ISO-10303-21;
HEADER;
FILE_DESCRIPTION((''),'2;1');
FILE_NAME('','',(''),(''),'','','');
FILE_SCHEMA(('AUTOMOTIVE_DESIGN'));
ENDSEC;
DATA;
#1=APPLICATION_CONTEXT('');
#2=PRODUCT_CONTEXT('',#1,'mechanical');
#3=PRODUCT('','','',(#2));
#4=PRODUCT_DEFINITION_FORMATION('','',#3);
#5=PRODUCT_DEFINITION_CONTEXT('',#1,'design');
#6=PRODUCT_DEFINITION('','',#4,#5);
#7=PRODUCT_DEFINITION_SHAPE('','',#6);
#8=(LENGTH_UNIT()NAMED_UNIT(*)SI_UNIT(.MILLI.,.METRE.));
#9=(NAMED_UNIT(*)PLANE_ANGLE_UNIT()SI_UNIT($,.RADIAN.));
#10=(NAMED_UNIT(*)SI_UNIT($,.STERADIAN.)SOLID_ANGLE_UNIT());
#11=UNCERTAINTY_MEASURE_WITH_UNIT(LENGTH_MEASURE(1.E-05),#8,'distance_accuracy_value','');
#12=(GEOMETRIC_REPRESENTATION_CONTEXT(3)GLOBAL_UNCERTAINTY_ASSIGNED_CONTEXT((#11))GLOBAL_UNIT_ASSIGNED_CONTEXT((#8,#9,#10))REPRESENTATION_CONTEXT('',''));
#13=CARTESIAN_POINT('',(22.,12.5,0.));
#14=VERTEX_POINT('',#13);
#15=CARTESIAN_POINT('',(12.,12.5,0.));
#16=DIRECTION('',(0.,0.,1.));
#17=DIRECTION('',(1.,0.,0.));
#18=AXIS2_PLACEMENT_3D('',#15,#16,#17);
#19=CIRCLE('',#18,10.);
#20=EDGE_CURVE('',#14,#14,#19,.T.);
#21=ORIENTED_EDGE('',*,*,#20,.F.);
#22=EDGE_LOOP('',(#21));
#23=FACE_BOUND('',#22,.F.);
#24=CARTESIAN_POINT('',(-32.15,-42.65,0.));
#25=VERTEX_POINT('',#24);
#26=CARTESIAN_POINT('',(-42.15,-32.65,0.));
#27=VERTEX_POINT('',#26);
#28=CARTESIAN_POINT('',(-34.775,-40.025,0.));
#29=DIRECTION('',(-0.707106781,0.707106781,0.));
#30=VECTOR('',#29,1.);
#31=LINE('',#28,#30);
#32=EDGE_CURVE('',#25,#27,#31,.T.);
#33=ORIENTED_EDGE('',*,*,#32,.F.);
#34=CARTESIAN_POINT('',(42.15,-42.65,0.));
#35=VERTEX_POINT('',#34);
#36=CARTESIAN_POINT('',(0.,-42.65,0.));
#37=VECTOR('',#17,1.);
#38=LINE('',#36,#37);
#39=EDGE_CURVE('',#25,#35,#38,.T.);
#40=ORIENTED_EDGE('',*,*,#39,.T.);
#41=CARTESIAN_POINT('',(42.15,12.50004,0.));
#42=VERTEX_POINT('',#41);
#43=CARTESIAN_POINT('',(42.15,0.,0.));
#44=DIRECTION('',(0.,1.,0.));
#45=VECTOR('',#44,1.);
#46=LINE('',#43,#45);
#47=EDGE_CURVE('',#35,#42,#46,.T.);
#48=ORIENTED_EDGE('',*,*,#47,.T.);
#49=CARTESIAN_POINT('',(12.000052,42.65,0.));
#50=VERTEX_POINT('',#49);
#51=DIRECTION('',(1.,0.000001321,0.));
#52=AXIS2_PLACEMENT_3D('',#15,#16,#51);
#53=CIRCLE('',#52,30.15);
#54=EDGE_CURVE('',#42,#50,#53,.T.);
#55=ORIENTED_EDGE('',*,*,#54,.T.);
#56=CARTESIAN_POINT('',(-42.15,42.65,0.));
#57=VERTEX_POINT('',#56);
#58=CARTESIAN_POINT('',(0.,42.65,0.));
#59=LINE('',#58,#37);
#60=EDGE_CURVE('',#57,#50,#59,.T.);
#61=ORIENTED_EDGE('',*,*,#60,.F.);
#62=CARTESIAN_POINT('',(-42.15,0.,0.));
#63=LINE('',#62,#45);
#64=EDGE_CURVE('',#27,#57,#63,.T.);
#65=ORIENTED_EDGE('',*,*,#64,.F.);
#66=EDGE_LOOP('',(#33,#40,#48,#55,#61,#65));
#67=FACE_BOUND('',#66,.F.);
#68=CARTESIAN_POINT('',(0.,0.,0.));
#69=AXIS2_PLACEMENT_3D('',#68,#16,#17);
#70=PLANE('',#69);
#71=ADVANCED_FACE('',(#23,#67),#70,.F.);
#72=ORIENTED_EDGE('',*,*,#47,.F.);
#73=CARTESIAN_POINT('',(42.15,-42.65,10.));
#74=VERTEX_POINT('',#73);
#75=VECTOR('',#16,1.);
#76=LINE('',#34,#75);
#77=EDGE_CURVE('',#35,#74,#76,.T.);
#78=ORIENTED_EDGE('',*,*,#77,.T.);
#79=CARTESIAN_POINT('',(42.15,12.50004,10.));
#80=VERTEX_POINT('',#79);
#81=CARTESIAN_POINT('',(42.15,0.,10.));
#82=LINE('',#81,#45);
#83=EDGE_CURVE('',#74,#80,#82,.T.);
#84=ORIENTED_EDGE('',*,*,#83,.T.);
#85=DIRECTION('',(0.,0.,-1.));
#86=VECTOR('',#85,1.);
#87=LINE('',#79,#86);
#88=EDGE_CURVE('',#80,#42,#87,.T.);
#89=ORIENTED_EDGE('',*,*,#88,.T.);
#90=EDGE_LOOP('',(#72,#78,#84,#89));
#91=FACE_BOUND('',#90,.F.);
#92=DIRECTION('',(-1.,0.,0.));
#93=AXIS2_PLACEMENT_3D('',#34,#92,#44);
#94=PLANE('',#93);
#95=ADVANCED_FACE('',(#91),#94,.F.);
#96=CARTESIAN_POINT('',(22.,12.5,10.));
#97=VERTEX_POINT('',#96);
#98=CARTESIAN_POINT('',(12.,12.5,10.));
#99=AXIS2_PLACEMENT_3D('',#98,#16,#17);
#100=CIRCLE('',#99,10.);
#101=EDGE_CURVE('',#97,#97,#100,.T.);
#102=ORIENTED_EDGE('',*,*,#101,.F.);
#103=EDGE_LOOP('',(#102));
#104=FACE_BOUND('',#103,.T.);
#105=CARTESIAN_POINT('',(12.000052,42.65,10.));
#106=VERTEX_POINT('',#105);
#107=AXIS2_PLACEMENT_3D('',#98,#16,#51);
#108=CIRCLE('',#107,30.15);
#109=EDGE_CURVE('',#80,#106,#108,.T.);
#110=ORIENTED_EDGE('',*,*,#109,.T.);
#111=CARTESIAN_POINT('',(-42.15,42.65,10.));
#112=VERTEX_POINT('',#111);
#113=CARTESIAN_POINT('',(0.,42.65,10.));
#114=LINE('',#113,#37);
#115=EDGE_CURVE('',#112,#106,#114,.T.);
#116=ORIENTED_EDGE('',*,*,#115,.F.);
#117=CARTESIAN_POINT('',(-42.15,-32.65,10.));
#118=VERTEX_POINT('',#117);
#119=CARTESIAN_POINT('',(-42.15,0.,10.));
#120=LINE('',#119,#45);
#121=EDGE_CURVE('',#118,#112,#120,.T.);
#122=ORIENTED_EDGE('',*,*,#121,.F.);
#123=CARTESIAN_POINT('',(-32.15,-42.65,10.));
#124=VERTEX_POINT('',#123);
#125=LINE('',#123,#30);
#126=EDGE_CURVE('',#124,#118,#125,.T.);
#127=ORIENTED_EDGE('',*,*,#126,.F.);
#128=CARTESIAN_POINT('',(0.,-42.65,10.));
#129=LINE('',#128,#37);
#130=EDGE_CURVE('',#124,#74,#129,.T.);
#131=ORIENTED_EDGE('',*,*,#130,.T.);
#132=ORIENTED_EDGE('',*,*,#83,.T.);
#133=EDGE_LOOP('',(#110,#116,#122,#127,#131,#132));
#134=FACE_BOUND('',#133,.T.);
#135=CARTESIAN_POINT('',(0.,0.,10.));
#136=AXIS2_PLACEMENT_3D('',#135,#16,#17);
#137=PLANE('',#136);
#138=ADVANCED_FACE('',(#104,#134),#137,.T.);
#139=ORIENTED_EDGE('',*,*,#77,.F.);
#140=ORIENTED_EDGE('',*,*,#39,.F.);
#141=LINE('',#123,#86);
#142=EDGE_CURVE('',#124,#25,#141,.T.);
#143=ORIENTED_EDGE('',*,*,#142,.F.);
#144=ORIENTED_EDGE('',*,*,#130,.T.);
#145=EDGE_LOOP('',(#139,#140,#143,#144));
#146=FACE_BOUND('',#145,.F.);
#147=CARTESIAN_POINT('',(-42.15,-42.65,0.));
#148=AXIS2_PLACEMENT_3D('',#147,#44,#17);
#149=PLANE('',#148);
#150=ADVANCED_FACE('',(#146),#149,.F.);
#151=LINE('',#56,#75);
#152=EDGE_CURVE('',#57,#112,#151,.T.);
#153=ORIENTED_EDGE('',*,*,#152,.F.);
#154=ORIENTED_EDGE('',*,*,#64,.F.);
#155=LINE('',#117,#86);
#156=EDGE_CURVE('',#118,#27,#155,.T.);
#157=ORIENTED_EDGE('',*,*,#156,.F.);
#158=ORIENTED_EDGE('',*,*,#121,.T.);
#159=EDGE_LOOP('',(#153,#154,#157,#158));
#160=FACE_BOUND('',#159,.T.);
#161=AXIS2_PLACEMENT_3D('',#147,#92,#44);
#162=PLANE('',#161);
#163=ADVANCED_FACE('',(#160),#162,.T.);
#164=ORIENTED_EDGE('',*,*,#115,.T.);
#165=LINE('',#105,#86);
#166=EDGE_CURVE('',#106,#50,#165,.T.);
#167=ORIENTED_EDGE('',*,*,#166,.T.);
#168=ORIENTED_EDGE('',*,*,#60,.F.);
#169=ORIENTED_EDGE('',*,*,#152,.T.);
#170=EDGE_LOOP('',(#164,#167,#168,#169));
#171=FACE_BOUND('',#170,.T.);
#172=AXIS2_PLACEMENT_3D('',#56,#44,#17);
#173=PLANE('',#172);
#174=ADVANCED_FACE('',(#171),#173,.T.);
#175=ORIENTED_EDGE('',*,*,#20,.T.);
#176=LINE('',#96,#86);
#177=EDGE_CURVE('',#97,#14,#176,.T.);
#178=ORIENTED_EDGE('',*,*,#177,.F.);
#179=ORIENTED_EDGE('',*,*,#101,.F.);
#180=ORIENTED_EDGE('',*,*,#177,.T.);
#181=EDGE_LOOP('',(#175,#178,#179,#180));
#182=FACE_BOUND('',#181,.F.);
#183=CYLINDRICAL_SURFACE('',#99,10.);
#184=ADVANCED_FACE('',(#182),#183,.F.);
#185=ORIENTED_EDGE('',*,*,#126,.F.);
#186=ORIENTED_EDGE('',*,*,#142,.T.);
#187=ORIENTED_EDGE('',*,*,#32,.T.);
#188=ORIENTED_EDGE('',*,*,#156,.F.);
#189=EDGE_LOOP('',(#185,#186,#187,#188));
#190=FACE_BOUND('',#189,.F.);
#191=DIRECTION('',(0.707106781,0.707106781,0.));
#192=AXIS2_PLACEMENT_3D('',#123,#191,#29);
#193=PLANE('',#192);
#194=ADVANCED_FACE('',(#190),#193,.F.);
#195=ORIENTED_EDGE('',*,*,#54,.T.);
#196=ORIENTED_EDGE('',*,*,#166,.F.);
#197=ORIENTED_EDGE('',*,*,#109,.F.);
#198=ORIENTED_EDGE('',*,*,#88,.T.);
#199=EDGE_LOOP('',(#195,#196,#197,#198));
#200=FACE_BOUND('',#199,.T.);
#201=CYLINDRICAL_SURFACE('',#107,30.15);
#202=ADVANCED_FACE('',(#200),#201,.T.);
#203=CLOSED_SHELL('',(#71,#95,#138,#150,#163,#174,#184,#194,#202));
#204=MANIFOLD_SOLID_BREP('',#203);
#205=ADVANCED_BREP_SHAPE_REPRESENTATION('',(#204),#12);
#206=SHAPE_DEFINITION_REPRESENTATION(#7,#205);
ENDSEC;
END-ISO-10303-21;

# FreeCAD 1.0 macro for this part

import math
import FreeCAD as App
import Part
import Sketcher
from FreeCAD import Vector


def add_polygon(sketch, points):
    """Adds a closed chain of lines whose ends are joined by coincident constraints."""
    first, n = sketch.GeometryCount, len(points)
    for a, b in zip(points, points[1:] + points[:1]):
        sketch.addGeometry(Part.LineSegment(App.Vector(*a, 0), App.Vector(*b, 0)), False)
    for i in range(n):
        sketch.addConstraint(Sketcher.Constraint("Coincident", first + i, 2, first + (i + 1) % n, 1))

doc = App.newDocument("Part")
body = doc.addObject("PartDesign::Body", "Body")

# Sketch on XY plane
sketch1 = body.newObject("Sketcher::SketchObject", "Sketch")
sketch1.AttachmentSupport = (doc.getObject("XY_Plane"), [""])
sketch1.MapMode = "FlatFace"
add_polygon(sketch1, [(-42, 43), (-42, -43), (42, -43), (42, 43)])  # lines 0-3
sketch1.addConstraint(Sketcher.Constraint("Vertical", 0))
sketch1.addConstraint(Sketcher.Constraint("Horizontal", 1))
sketch1.addConstraint(Sketcher.Constraint("Vertical", 2))
sketch1.addConstraint(Sketcher.Constraint("Horizontal", 3))
sketch1.addConstraint(Sketcher.Constraint("Symmetric", 0, 2, 2, 2, -1, 1))
sketch1.addConstraint(Sketcher.Constraint("DistanceX", 1, 1, 1, 2, 84.3))
sketch1.addConstraint(Sketcher.Constraint("DistanceY", 0, 2, 0, 1, 85.3))
pad1 = body.newObject("PartDesign::Pad", "Pad")
pad1.Profile = sketch1
pad1.Length = 10

# Sketch on XY plane
sketch2 = body.newObject("Sketcher::SketchObject", "Sketch001")
sketch2.AttachmentSupport = (doc.getObject("XY_Plane"), [""])
sketch2.MapMode = "FlatFace"
sketch2.AttachmentOffset = App.Placement(Vector(0, 0, 10), App.Rotation())
sketch2.addGeometry(Part.Circle(Vector(12, 12.5, 0), Vector(0, 0, 1), 10), False)  # 0
add_polygon(sketch2, [(-42.15, -32.65), (-42.15, -42.65), (-32.15, -42.65)])  # lines 1-3
sketch2.addGeometry(Part.ArcOfCircle(Part.Circle(Vector(12, 12.5, 0), Vector(0, 0, 1), 30.15), math.radians(0.000076), math.radians(89.999901)), False)  # 4
sketch2.addGeometry(Part.LineSegment(Vector(42.15, 12.50004, 0), Vector(42.15, 84.3, 0)), False)  # 5
sketch2.addGeometry(Part.LineSegment(Vector(42.15, 84.3, 0), Vector(12.000052, 42.65, 0)), False)  # 6
sketch2.addConstraint(Sketcher.Constraint("Coincident", 4, 1, 5, 1))
sketch2.addConstraint(Sketcher.Constraint("Coincident", 5, 2, 6, 1))
sketch2.addConstraint(Sketcher.Constraint("Coincident", 6, 2, 4, 2))
sketch2.addConstraint(Sketcher.Constraint("Vertical", 1))
sketch2.addConstraint(Sketcher.Constraint("Horizontal", 2))
sketch2.addConstraint(Sketcher.Constraint("Vertical", 5))
sketch2.addConstraint(Sketcher.Constraint("Coincident", 4, 3, 0, 3))
sketch2.addConstraint(Sketcher.Constraint("Diameter", 0, 20.0))
sketch2.addConstraint(Sketcher.Constraint("DistanceX", 2, 1, 2, 2, 10.0))
sketch2.addConstraint(Sketcher.Constraint("DistanceY", 1, 2, 1, 1, 10.0))
sketch2.addConstraint(Sketcher.Constraint("Radius", 4, 30.15))
sketch2.addConstraint(Sketcher.Constraint("DistanceX", -1, 1, 0, 3, 12.0))
sketch2.addConstraint(Sketcher.Constraint("DistanceY", -1, 1, 0, 3, 12.5))
sketch2.addConstraint(Sketcher.Constraint("DistanceY", -1, 1, 5, 2, 84.3))
sketch2.addConstraint(Sketcher.Constraint("DistanceX", 2, 2, 4, 1, 74.3))
sketch2.addConstraint(Sketcher.Constraint("DistanceY", 3, 2, 6, 2, 75.3))
sketch2.addConstraint(Sketcher.Constraint("DistanceY", 5, 1, 5, 2, 71.79996))
sketch2.addConstraint(Sketcher.Constraint("Distance", 6, 51.41733))
pocket1 = body.newObject("PartDesign::Pocket", "Pocket")
pocket1.Profile = sketch2
pocket1.Type = "ThroughAll"

doc.recompute()
